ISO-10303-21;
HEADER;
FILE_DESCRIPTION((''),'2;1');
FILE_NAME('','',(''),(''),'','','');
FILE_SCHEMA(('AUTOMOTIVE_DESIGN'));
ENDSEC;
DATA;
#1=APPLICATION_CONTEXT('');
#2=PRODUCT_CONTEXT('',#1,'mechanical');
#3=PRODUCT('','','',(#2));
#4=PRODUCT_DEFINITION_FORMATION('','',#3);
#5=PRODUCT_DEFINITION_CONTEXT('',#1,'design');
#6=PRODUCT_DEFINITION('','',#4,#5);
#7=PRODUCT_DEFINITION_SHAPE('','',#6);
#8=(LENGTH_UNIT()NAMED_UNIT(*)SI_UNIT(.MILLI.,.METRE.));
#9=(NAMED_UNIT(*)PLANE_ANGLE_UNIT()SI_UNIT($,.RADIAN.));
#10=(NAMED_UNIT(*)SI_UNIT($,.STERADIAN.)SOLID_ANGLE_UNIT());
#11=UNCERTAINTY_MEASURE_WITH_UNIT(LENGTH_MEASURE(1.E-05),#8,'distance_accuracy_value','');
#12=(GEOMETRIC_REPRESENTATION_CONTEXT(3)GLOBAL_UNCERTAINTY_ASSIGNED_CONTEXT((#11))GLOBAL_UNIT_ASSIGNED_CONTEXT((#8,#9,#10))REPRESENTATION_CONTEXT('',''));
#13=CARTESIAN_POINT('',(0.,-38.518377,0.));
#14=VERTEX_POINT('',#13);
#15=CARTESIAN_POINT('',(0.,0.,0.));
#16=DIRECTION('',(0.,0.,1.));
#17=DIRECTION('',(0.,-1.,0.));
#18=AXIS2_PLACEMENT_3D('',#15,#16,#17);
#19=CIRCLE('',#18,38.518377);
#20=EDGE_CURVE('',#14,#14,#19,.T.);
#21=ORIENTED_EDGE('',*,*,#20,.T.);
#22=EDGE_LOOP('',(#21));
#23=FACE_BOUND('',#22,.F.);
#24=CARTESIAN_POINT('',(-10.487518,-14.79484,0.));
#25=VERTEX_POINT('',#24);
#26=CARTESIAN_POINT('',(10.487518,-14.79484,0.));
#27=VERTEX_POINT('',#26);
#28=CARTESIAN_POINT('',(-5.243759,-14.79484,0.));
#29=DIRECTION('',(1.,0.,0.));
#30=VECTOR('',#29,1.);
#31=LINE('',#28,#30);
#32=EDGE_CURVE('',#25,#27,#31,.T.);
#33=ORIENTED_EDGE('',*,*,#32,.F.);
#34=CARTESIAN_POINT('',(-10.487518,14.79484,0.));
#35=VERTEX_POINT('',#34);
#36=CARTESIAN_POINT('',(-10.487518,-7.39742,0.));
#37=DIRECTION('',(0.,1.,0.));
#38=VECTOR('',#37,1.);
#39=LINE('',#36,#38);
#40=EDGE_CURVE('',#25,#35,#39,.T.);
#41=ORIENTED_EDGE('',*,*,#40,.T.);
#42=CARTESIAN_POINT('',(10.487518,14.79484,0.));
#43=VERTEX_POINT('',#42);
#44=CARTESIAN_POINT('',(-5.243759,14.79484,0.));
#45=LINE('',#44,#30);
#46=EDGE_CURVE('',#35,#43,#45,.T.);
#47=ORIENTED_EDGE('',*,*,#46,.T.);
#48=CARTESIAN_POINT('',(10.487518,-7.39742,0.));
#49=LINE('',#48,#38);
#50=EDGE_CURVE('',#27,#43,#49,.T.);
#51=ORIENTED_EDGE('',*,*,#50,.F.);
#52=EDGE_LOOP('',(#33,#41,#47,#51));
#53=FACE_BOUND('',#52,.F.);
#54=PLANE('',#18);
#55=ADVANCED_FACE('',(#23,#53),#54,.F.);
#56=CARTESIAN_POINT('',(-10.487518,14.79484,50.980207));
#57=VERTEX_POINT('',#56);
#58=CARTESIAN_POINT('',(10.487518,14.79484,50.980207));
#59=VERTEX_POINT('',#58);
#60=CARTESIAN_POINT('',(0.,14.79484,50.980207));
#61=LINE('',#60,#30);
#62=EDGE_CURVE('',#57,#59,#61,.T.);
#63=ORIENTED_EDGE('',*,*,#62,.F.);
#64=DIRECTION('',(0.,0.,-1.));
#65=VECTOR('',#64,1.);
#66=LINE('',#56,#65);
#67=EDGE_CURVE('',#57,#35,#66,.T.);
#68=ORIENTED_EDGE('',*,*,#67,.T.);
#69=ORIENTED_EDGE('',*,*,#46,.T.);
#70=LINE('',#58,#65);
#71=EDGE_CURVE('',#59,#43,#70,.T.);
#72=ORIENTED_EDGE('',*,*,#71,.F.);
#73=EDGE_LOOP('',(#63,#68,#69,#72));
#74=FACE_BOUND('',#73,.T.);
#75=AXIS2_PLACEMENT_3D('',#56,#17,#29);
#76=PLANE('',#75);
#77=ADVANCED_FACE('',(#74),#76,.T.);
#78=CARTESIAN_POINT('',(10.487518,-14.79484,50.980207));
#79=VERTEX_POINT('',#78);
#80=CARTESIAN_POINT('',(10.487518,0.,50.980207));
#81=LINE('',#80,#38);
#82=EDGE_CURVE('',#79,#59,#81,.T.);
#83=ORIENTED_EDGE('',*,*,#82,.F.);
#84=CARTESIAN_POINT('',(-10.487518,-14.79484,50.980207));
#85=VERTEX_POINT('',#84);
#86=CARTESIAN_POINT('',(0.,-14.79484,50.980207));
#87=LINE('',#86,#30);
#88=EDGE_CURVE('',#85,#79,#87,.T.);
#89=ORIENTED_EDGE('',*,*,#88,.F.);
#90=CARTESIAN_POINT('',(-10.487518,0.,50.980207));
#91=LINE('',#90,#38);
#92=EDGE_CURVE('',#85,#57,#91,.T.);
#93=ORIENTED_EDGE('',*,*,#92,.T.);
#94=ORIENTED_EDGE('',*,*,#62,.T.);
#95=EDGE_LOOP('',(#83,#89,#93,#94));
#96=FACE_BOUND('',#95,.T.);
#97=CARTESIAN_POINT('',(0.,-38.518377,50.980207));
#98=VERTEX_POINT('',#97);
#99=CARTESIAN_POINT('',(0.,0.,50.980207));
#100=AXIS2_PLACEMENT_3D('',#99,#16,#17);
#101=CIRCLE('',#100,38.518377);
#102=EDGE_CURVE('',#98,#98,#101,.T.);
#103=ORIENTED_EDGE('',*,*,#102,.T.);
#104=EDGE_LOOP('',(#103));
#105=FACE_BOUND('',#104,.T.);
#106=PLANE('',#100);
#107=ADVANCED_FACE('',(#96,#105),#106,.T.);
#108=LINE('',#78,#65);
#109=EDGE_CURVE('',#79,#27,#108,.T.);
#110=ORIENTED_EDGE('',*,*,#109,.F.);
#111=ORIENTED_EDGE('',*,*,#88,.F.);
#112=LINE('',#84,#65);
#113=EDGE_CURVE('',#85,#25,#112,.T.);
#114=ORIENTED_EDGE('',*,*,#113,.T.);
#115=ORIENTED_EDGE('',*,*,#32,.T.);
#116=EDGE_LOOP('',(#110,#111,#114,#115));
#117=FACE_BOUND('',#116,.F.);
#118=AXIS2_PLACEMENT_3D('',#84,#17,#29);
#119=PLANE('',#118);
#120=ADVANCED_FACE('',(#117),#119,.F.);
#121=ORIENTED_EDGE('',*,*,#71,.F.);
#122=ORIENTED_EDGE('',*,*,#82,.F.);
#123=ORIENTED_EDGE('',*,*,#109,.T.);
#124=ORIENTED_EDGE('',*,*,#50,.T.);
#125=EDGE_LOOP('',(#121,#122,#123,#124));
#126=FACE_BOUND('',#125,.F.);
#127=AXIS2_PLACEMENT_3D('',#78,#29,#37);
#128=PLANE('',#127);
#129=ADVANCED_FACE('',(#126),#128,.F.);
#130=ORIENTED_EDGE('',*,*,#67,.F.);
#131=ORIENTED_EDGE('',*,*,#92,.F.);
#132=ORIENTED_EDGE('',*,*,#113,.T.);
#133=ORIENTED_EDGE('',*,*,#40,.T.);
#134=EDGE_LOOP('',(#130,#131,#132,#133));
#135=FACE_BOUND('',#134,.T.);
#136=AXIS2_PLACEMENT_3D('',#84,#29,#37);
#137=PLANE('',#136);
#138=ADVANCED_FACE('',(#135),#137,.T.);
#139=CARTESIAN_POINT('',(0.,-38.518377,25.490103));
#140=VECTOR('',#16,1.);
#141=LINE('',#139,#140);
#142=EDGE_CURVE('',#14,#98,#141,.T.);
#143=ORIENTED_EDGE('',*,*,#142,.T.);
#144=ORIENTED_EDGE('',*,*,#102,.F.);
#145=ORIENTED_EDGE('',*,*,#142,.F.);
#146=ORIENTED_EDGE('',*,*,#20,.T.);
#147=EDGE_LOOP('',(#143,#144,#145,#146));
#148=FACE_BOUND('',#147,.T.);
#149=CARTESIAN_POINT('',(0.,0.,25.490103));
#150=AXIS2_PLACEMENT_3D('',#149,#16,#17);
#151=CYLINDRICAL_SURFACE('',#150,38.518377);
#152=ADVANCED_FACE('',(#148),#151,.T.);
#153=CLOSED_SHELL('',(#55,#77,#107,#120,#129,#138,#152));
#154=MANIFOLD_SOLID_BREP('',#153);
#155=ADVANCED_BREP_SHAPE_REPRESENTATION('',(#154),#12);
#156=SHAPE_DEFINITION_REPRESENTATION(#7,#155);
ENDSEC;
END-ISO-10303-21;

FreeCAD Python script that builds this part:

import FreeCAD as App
import Part
import Sketcher
Q = App.Units.Quantity

doc = App.newDocument("Part")
params = doc.addObject("Spreadsheet::Sheet", "Params")
for row, (alias, value) in enumerate([
    ("revolution_angle", "360 deg"),
], start=1):
    params.set(f"A{row}", alias)
    params.set(f"B{row}", "=" + value)
    params.setAlias(f"B{row}", alias)

body = doc.addObject("PartDesign::Body", "Body")

# Sketch on YZ plane
sketch1 = doc.addObject("Sketcher::SketchObject", "Sketch")
body.addObject(sketch1)
sketch1.AttachmentSupport = (doc.YZ_Plane, [""])
sketch1.MapMode = "FlatFace"
sketch1.addGeometry(Part.LineSegment(App.Vector(-38.518377, 50.980207, 0), App.Vector(-38.518377, 0, 0)), False)
sketch1.addGeometry(Part.LineSegment(App.Vector(-38.518377, 0, 0), App.Vector(0, 0, 0)), False)
sketch1.addGeometry(Part.LineSegment(App.Vector(0, 0, 0), App.Vector(0, 50.980207, 0)), False)
sketch1.addGeometry(Part.LineSegment(App.Vector(0, 50.980207, 0), App.Vector(-38.518377, 50.980207, 0)), False)
sketch1.addConstraint(Sketcher.Constraint("Coincident", 0, 2, 1, 1))
sketch1.addConstraint(Sketcher.Constraint("Coincident", 1, 2, 2, 1))
sketch1.addConstraint(Sketcher.Constraint("Coincident", 2, 2, 3, 1))
sketch1.addConstraint(Sketcher.Constraint("Coincident", 3, 2, 0, 1))
sketch1.addConstraint(Sketcher.Constraint("Vertical", 0))
sketch1.addConstraint(Sketcher.Constraint("Horizontal", 1))
sketch1.addConstraint(Sketcher.Constraint("Vertical", 2))
sketch1.addConstraint(Sketcher.Constraint("Horizontal", 3))
sketch1.addConstraint(Sketcher.Constraint("Coincident", 1, 2, -1, 1))
sketch1.addConstraint(Sketcher.Constraint("DistanceX", 1, 1, 1, 2, Q("38.518377 mm")))
sketch1.addConstraint(Sketcher.Constraint("DistanceY", 0, 2, 0, 1, Q("50.980207 mm")))
revolution = doc.addObject("PartDesign::Revolution", "Revolution")
body.addObject(revolution)
revolution.Profile = sketch1
revolution.ReferenceAxis = (sketch1, ["V_Axis"])
revolution.setExpression("Angle", "Params.revolution_angle")

# Sketch on XY plane
sketch2 = doc.addObject("Sketcher::SketchObject", "Sketch001")
body.addObject(sketch2)
sketch2.AttachmentSupport = (doc.XY_Plane, [""])
sketch2.MapMode = "FlatFace"
sketch2.AttachmentOffset = App.Placement(App.Vector(0, 0, 50.980207), App.Rotation())
sketch2.addGeometry(Part.LineSegment(App.Vector(-10.487518, 14.79484, 0), App.Vector(-10.487518, -14.79484, 0)), False)
sketch2.addGeometry(Part.LineSegment(App.Vector(-10.487518, -14.79484, 0), App.Vector(10.487518, -14.79484, 0)), False)
sketch2.addGeometry(Part.LineSegment(App.Vector(10.487518, -14.79484, 0), App.Vector(10.487518, 14.79484, 0)), False)
sketch2.addGeometry(Part.LineSegment(App.Vector(10.487518, 14.79484, 0), App.Vector(-10.487518, 14.79484, 0)), False)
sketch2.addConstraint(Sketcher.Constraint("Coincident", 0, 2, 1, 1))
sketch2.addConstraint(Sketcher.Constraint("Coincident", 1, 2, 2, 1))
sketch2.addConstraint(Sketcher.Constraint("Coincident", 2, 2, 3, 1))
sketch2.addConstraint(Sketcher.Constraint("Coincident", 3, 2, 0, 1))
sketch2.addConstraint(Sketcher.Constraint("Vertical", 0))
sketch2.addConstraint(Sketcher.Constraint("Horizontal", 1))
sketch2.addConstraint(Sketcher.Constraint("Vertical", 2))
sketch2.addConstraint(Sketcher.Constraint("Horizontal", 3))
sketch2.addConstraint(Sketcher.Constraint("Symmetric", 0, 2, 2, 2, -1, 1))
sketch2.addConstraint(Sketcher.Constraint("DistanceY", 0, 2, 0, 1, Q("29.589679 mm")))
sketch2.addConstraint(Sketcher.Constraint("DistanceX", 1, 1, 1, 2, Q("20.975037 mm")))
pocket1 = doc.addObject("PartDesign::Pocket", "Pocket")
body.addObject(pocket1)
pocket1.Profile = sketch2
pocket1.Type = "ThroughAll"

doc.recompute()
